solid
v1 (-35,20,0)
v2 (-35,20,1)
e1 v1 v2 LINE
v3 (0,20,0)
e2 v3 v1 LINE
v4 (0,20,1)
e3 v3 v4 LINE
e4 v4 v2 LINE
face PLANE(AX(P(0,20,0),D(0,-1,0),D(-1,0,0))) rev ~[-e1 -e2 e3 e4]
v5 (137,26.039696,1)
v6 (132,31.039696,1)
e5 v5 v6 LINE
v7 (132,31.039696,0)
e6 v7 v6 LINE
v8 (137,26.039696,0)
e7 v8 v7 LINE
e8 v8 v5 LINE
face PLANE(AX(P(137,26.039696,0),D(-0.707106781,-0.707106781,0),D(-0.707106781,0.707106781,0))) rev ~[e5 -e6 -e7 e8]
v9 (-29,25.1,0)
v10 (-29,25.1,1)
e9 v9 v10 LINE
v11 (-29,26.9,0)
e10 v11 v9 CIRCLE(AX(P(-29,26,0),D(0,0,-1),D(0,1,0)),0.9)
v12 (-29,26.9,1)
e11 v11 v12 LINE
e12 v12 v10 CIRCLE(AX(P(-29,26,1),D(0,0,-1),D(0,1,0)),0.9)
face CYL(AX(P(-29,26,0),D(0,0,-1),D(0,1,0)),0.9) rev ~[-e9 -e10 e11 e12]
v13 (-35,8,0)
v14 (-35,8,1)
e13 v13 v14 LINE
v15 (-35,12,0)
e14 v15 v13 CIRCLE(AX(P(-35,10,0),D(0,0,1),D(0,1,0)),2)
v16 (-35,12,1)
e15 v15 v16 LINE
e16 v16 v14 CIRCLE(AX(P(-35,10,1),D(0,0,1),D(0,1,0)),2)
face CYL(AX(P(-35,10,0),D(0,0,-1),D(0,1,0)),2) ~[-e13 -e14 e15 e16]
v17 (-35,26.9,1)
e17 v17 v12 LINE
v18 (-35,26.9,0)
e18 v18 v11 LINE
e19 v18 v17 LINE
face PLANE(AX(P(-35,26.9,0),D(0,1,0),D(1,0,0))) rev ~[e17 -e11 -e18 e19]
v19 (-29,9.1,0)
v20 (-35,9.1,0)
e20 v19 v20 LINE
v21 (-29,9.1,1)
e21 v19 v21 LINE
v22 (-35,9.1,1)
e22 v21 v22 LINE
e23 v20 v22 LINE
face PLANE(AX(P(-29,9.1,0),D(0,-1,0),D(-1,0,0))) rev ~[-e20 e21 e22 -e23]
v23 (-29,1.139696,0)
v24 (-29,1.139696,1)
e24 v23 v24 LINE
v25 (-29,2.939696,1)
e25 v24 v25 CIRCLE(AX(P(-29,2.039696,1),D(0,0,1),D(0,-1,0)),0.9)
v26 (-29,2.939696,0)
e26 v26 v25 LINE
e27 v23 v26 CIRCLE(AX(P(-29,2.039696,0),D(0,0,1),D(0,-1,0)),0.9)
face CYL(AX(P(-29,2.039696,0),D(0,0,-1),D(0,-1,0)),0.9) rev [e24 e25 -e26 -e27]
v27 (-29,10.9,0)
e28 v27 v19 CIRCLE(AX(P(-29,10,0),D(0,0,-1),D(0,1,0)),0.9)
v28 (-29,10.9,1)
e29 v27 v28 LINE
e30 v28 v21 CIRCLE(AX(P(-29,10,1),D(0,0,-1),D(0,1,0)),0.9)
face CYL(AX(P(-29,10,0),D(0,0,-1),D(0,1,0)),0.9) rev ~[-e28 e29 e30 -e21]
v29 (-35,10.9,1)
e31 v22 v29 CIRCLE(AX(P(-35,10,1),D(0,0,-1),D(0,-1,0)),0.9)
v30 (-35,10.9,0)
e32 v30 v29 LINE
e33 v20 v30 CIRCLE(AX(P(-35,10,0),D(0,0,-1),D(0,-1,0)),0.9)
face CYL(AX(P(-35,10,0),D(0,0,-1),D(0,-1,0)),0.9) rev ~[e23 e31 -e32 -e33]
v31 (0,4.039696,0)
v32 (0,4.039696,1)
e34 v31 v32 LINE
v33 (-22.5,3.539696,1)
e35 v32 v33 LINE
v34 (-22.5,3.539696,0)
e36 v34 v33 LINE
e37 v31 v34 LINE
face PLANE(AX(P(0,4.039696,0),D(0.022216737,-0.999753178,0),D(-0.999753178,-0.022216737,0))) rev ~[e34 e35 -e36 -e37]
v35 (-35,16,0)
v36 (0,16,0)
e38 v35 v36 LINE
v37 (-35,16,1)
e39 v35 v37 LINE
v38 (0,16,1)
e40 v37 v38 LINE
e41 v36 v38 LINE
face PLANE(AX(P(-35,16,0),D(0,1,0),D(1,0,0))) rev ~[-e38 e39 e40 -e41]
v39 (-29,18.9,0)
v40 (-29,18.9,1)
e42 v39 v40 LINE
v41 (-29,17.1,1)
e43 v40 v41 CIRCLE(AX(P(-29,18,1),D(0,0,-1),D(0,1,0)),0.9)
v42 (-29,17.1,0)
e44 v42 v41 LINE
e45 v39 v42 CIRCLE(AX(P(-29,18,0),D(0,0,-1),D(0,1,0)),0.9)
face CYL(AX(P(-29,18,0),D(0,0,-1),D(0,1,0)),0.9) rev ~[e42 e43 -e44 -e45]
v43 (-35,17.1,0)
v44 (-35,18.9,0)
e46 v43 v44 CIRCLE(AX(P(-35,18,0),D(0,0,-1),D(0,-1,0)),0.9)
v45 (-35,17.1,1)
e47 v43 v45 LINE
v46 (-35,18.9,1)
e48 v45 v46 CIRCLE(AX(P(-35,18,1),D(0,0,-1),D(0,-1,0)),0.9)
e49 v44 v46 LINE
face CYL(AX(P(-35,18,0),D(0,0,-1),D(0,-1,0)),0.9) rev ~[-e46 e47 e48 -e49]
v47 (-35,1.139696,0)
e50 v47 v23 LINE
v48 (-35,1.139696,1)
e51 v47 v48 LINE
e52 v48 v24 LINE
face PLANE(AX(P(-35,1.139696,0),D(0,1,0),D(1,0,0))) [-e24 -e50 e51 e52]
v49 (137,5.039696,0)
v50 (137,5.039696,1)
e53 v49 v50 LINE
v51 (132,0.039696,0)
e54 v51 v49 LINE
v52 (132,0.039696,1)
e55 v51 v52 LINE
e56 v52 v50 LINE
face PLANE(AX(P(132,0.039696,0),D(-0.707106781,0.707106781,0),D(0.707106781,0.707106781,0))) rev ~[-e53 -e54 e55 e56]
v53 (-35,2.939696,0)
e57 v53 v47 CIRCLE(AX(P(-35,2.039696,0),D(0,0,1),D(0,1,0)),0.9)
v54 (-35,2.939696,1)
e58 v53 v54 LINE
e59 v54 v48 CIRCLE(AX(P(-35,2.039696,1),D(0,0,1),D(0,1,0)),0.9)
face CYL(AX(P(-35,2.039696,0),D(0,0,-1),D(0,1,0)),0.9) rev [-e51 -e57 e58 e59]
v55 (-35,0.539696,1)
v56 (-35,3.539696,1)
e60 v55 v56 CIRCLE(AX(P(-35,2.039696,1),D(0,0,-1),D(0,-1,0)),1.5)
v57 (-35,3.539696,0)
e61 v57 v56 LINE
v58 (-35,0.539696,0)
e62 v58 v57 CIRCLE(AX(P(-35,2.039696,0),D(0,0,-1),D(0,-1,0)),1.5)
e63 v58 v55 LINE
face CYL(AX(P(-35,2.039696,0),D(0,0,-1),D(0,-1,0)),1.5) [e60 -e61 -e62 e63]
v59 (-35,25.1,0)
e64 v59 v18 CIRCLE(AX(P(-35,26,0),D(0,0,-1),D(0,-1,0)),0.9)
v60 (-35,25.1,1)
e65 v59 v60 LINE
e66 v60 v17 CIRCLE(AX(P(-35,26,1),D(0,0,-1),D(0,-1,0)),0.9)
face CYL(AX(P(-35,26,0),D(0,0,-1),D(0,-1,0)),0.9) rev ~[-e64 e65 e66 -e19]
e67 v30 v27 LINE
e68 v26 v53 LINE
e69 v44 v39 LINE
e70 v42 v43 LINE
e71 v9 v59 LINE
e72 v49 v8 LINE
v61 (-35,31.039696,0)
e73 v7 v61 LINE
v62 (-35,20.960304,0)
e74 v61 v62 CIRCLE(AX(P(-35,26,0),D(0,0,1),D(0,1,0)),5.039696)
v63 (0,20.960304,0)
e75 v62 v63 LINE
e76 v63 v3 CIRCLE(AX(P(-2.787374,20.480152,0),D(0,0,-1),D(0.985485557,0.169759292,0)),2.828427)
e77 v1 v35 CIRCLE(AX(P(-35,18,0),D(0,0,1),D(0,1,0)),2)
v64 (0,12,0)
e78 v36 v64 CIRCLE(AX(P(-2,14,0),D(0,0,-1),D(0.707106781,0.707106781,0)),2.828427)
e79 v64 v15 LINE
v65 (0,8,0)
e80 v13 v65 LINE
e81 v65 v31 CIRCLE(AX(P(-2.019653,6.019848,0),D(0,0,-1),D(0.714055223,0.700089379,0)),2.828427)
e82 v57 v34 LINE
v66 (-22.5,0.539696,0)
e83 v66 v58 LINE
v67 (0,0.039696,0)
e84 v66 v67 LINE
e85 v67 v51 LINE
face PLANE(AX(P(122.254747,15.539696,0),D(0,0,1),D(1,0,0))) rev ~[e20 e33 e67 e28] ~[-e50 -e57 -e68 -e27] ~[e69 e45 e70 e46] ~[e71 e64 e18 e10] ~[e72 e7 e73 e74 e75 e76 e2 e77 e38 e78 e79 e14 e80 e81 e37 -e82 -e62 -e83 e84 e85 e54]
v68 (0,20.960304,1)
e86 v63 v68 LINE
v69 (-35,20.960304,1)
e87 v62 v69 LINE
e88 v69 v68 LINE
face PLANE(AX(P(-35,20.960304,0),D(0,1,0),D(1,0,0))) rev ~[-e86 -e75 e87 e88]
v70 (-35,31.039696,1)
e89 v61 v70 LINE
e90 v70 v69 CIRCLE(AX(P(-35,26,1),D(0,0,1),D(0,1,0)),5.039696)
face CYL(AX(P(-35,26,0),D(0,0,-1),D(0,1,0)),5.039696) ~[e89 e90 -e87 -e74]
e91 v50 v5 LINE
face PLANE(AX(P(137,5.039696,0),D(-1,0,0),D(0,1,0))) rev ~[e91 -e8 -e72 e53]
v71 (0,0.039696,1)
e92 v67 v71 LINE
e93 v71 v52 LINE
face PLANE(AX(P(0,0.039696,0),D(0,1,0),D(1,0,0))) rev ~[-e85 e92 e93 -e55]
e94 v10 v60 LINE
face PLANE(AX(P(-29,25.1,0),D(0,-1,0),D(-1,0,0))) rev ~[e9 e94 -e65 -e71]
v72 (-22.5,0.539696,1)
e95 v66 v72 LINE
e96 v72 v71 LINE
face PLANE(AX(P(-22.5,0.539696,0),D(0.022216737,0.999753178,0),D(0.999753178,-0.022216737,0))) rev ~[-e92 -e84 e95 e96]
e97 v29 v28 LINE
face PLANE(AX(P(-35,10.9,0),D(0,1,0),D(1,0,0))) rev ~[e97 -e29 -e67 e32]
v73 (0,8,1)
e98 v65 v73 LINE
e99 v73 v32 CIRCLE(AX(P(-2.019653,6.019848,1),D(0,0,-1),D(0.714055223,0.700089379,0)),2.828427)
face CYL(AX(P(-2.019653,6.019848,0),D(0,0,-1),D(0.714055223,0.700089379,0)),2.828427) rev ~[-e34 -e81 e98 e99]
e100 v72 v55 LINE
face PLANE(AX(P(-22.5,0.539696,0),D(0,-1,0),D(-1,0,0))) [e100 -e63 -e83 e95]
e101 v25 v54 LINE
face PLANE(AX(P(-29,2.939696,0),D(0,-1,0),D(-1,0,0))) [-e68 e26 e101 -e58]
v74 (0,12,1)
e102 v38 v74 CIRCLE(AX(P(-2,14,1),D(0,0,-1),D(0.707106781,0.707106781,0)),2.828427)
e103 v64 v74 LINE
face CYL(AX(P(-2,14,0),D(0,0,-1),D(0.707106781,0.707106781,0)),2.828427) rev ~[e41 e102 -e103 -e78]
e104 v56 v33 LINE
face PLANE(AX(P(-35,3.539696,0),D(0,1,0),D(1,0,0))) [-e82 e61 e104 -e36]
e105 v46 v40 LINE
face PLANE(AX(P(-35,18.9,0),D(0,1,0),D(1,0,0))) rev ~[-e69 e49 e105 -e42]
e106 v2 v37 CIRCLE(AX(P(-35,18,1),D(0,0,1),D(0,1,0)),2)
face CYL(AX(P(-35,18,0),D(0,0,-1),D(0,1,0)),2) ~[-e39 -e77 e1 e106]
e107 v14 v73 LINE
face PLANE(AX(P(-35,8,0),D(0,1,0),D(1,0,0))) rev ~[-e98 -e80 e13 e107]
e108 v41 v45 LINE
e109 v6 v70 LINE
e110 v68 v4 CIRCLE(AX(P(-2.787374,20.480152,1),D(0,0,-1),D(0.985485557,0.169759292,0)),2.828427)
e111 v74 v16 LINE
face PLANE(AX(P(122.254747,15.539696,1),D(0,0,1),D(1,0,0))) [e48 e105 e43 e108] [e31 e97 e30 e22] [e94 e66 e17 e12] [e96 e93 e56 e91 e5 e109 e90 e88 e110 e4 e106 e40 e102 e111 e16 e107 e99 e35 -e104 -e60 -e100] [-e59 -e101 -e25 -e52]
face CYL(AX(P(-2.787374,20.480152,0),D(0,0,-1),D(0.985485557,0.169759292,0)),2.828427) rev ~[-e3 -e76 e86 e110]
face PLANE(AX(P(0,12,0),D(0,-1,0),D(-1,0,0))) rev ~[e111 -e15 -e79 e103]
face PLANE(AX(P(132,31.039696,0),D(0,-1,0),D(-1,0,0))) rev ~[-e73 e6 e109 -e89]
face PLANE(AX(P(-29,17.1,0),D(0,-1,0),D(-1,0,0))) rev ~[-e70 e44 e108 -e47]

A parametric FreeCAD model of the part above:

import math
import FreeCAD as App
import Part
import Sketcher

V = App.Vector

doc = App.newDocument("Part")
params = doc.addObject("Spreadsheet::Sheet", "Params")
for row, (alias, value) in enumerate([
    ("sketch1_radius", "2 mm"),
    ("sketch1_radius2", "1.5 mm"),
    ("sketch1_radius3", "0.9 mm"),
    ("sketch1_width", "167 mm"),
    ("sketch1_width2", "35 mm"),
    ("pad1_length", "1 mm"),
], start=1):
    params.set(f"A{row}", alias)
    params.set(f"B{row}", "=" + value)
    params.setAlias(f"B{row}", alias)

body = doc.addObject("PartDesign::Body", "Body")

sketch1 = body.newObject("Sketcher::SketchObject", "Sketch")
sketch1.AttachmentSupport = (doc.getObject("XY_Plane"), [""])
sketch1.MapMode = "FlatFace"
sketch1.addGeometry(Part.LineSegment(V(132, 0, 0), V(137, 5, 0)), False)
sketch1.addGeometry(Part.LineSegment(V(137, 5, 0), V(137, 26, 0)), False)
sketch1.addGeometry(Part.LineSegment(V(137, 26, 0), V(132, 31, 0)), False)
sketch1.addGeometry(Part.LineSegment(V(132, 31, 0), V(-35, 31, 0)), False)
sketch1.addGeometry(Part.ArcOfCircle(Part.Circle(V(-35, 26, 0), V(0, 0, 1), 5), math.radians(90), math.radians(270)), False)
sketch1.addGeometry(Part.LineSegment(V(-35, 21, 0), V(0, 21, 0)), False)
sketch1.addGeometry(Part.ArcOfCircle(Part.Circle(V(-2.8, 20.5, 0), V(0, 0, 1), 2.8), math.radians(-9.77), math.radians(9.77)), False)
sketch1.addGeometry(Part.LineSegment(V(0, 20, 0), V(-35, 20, 0)), False)
sketch1.addGeometry(Part.ArcOfCircle(Part.Circle(V(-35, 18, 0), V(0, 0, 1), 2), math.radians(90), math.radians(270)), False)
sketch1.addGeometry(Part.LineSegment(V(-35, 16, 0), V(0, 16, 0)), False)
sketch1.addGeometry(Part.ArcOfCircle(Part.Circle(V(-2, 14, 0), V(0, 0, 1), 2.8), math.radians(-45), math.radians(45)), False)
sketch1.addGeometry(Part.LineSegment(V(0, 12, 0), V(-35, 12, 0)), False)
sketch1.addGeometry(Part.ArcOfCircle(Part.Circle(V(-35, 10, 0), V(0, 0, 1), 2), math.radians(90), math.radians(270)), False)
sketch1.addGeometry(Part.LineSegment(V(-35, 8, 0), V(0, 8, 0)), False)
sketch1.addGeometry(Part.ArcOfCircle(Part.Circle(V(-2, 6, 0), V(0, 0, 1), 2.8), math.radians(-44), math.radians(44)), False)
sketch1.addGeometry(Part.LineSegment(V(0, 4, 0), V(-22.5, 3.5, 0)), False)
sketch1.addGeometry(Part.LineSegment(V(-22.5, 3.5, 0), V(-35, 3.5, 0)), False)
sketch1.addGeometry(Part.ArcOfCircle(Part.Circle(V(-35, 2, 0), V(0, 0, 1), 1.5), math.radians(90), math.radians(270)), False)
sketch1.addGeometry(Part.LineSegment(V(-35, 0.5, 0), V(-22.5, 0.5, 0)), False)
sketch1.addGeometry(Part.LineSegment(V(-22.5, 0.5, 0), V(0, 0, 0)), False)
sketch1.addGeometry(Part.LineSegment(V(0, 0, 0), V(132, 0, 0)), False)
sketch1.addGeometry(Part.ArcOfCircle(Part.Circle(V(-29, 2, 0), V(0, 0, 1), 0.9), math.radians(-90), math.radians(90)), False)
sketch1.addGeometry(Part.LineSegment(V(-29, 1.1, 0), V(-35, 1.1, 0)), False)
sketch1.addGeometry(Part.ArcOfCircle(Part.Circle(V(-35, 2, 0), V(0, 0, 1), 0.9), math.radians(90), math.radians(270)), False)
sketch1.addGeometry(Part.LineSegment(V(-35, 2.9, 0), V(-29, 2.9, 0)), False)
sketch1.addGeometry(Part.LineSegment(V(-29, 9.1, 0), V(-35, 9.1, 0)), False)
sketch1.addGeometry(Part.ArcOfCircle(Part.Circle(V(-35, 10, 0), V(0, 0, 1), 0.9), math.radians(90), math.radians(270)), False)
sketch1.addGeometry(Part.LineSegment(V(-35, 10.9, 0), V(-29, 10.9, 0)), False)
sketch1.addGeometry(Part.ArcOfCircle(Part.Circle(V(-29, 10, 0), V(0, 0, 1), 0.9), math.radians(-90), math.radians(90)), False)
sketch1.addGeometry(Part.LineSegment(V(-29, 17.1, 0), V(-35, 17.1, 0)), False)
sketch1.addGeometry(Part.ArcOfCircle(Part.Circle(V(-35, 18, 0), V(0, 0, 1), 0.9), math.radians(90), math.radians(270)), False)
sketch1.addGeometry(Part.LineSegment(V(-35, 18.9, 0), V(-29, 18.9, 0)), False)
sketch1.addGeometry(Part.ArcOfCircle(Part.Circle(V(-29, 18, 0), V(0, 0, 1), 0.9), math.radians(-90), math.radians(90)), False)
sketch1.addGeometry(Part.LineSegment(V(-29, 25.1, 0), V(-35, 25.1, 0)), False)
sketch1.addGeometry(Part.ArcOfCircle(Part.Circle(V(-35, 26, 0), V(0, 0, 1), 0.9), math.radians(90), math.radians(270)), False)
sketch1.addGeometry(Part.LineSegment(V(-35, 26.9, 0), V(-29, 26.9, 0)), False)
sketch1.addGeometry(Part.ArcOfCircle(Part.Circle(V(-29, 26, 0), V(0, 0, 1), 0.9), math.radians(-90), math.radians(90)), False)
sketch1.addConstraint(Sketcher.Constraint("Coincident", 0, 2, 1, 1))
sketch1.addConstraint(Sketcher.Constraint("Coincident", 1, 2, 2, 1))
sketch1.addConstraint(Sketcher.Constraint("Coincident", 2, 2, 3, 1))
sketch1.addConstraint(Sketcher.Constraint("Tangent", 3, 2, 4, 1))
sketch1.addConstraint(Sketcher.Constraint("Tangent", 4, 2, 5, 1))
sketch1.addConstraint(Sketcher.Constraint("Coincident", 5, 2, 6, 2))
sketch1.addConstraint(Sketcher.Constraint("Coincident", 6, 1, 7, 1))
sketch1.addConstraint(Sketcher.Constraint("Tangent", 7, 2, 8, 1))
sketch1.addConstraint(Sketcher.Constraint("Tangent", 8, 2, 9, 1))
sketch1.addConstraint(Sketcher.Constraint("Coincident", 9, 2, 10, 2))
sketch1.addConstraint(Sketcher.Constraint("Coincident", 10, 1, 11, 1))
sketch1.addConstraint(Sketcher.Constraint("Tangent", 11, 2, 12, 1))
sketch1.addConstraint(Sketcher.Constraint("Tangent", 12, 2, 13, 1))
sketch1.addConstraint(Sketcher.Constraint("Coincident", 13, 2, 14, 2))
sketch1.addConstraint(Sketcher.Constraint("Coincident", 14, 1, 15, 1))
sketch1.addConstraint(Sketcher.Constraint("Coincident", 15, 2, 16, 1))
sketch1.addConstraint(Sketcher.Constraint("Tangent", 16, 2, 17, 1))
sketch1.addConstraint(Sketcher.Constraint("Tangent", 17, 2, 18, 1))
sketch1.addConstraint(Sketcher.Constraint("Coincident", 18, 2, 19, 1))
sketch1.addConstraint(Sketcher.Constraint("Coincident", 19, 2, 20, 1))
sketch1.addConstraint(Sketcher.Constraint("Coincident", 20, 2, 0, 1))
sketch1.addConstraint(Sketcher.Constraint("Tangent", 21, 1, 22, 1))
sketch1.addConstraint(Sketcher.Constraint("Tangent", 22, 2, 23, 2))
sketch1.addConstraint(Sketcher.Constraint("Tangent", 23, 1, 24, 1))
sketch1.addConstraint(Sketcher.Constraint("Tangent", 24, 2, 21, 2))
sketch1.addConstraint(Sketcher.Constraint("Tangent", 25, 2, 26, 2))
sketch1.addConstraint(Sketcher.Constraint("Tangent", 26, 1, 27, 1))
sketch1.addConstraint(Sketcher.Constraint("Tangent", 27, 2, 28, 2))
sketch1.addConstraint(Sketcher.Constraint("Tangent", 28, 1, 25, 1))
sketch1.addConstraint(Sketcher.Constraint("Tangent", 29, 2, 30, 2))
sketch1.addConstraint(Sketcher.Constraint("Tangent", 30, 1, 31, 1))
sketch1.addConstraint(Sketcher.Constraint("Tangent", 31, 2, 32, 2))
sketch1.addConstraint(Sketcher.Constraint("Tangent", 32, 1, 29, 1))
sketch1.addConstraint(Sketcher.Constraint("Tangent", 33, 2, 34, 2))
sketch1.addConstraint(Sketcher.Constraint("Tangent", 34, 1, 35, 1))
sketch1.addConstraint(Sketcher.Constraint("Tangent", 35, 2, 36, 2))
sketch1.addConstraint(Sketcher.Constraint("Tangent", 36, 1, 33, 1))
sketch1.addConstraint(Sketcher.Constraint("Vertical", 1))
sketch1.addConstraint(Sketcher.Constraint("Horizontal", 3))
sketch1.addConstraint(Sketcher.Constraint("Horizontal", 5))
sketch1.addConstraint(Sketcher.Constraint("Horizontal", 7))
sketch1.addConstraint(Sketcher.Constraint("Horizontal", 9))
sketch1.addConstraint(Sketcher.Constraint("Horizontal", 11))
sketch1.addConstraint(Sketcher.Constraint("Horizontal", 13))
sketch1.addConstraint(Sketcher.Constraint("Horizontal", 16))
sketch1.addConstraint(Sketcher.Constraint("Horizontal", 18))
sketch1.addConstraint(Sketcher.Constraint("Horizontal", 20))
sketch1.addConstraint(Sketcher.Constraint("Horizontal", 22))
sketch1.addConstraint(Sketcher.Constraint("Horizontal", 24))
sketch1.addConstraint(Sketcher.Constraint("Horizontal", 25))
sketch1.addConstraint(Sketcher.Constraint("Horizontal", 27))
sketch1.addConstraint(Sketcher.Constraint("Horizontal", 29))
sketch1.addConstraint(Sketcher.Constraint("Horizontal", 31))
sketch1.addConstraint(Sketcher.Constraint("Horizontal", 33))
sketch1.addConstraint(Sketcher.Constraint("Horizontal", 35))
sketch1.addConstraint(Sketcher.Constraint("Coincident", 23, 3, 17, 3))
sketch1.addConstraint(Sketcher.Constraint("Coincident", 26, 3, 12, 3))
sketch1.addConstraint(Sketcher.Constraint("Coincident", 30, 3, 8, 3))
sketch1.addConstraint(Sketcher.Constraint("Coincident", 34, 3, 4, 3))
sketch1.addConstraint(Sketcher.Constraint("Equal", 6, 10))
sketch1.addConstraint(Sketcher.Constraint("Equal", 8, 12))
sketch1.addConstraint(Sketcher.Constraint("Equal", 10, 14))
sketch1.addConstraint(Sketcher.Constraint("Equal", 23, 26))
sketch1.addConstraint(Sketcher.Constraint("Equal", 28, 30))
sketch1.addConstraint(Sketcher.Constraint("Equal", 32, 34))
sketch1.addConstraint(Sketcher.Constraint("PointOnObject", 5, 2, -2))
sketch1.addConstraint(Sketcher.Constraint("PointOnObject", 6, 1, -2))
sketch1.addConstraint(Sketcher.Constraint("PointOnObject", 9, 2, -2))
sketch1.addConstraint(Sketcher.Constraint("PointOnObject", 10, 1, -2))
sketch1.addConstraint(Sketcher.Constraint("PointOnObject", 13, 2, -2))
sketch1.addConstraint(Sketcher.Constraint("PointOnObject", 14, 1, -2))
sketch1.addConstraint(Sketcher.Constraint("PointOnObject", 19, 2, -2))
sketch1.addConstraint(Sketcher.Constraint("Perpendicular", 0, 2))
sketch1.addConstraint(Sketcher.Constraint("Vertical", 4, 3, 8, 3))
sketch1.addConstraint(Sketcher.Constraint("Vertical", 8, 3, 12, 3))
sketch1.addConstraint(Sketcher.Constraint("Vertical", 12, 3, 17, 3))
sketch1.addConstraint(Sketcher.Constraint("Vertical", 21, 3, 28, 3))
sketch1.addConstraint(Sketcher.Constraint("Vertical", 28, 3, 32, 3))
sketch1.addConstraint(Sketcher.Constraint("Vertical", 32, 3, 36, 3))
sketch1.addConstraint(Sketcher.Constraint("Vertical", 15, 2, 18, 2))
sketch1.addConstraint(Sketcher.Constraint("Vertical", 2, 2, 20, 2))
sketch1.addConstraint(Sketcher.Constraint("Equal", 0, 2))
sketch1.addConstraint(Sketcher.Constraint("Equal", 15, 19))
sketch1.addConstraint(Sketcher.Constraint("Radius", 8, 2.0))
sketch1.addConstraint(Sketcher.Constraint("Radius", 17, 1.5))
sketch1.addConstraint(Sketcher.Constraint("Radius", 21, 0.9))
sketch1.addConstraint(Sketcher.Constraint("DistanceX", 3, 2, 3, 1, 167.0))
sketch1.addConstraint(Sketcher.Constraint("DistanceX", 5, 1, 5, 2, 35.0))
sketch1.addConstraint(Sketcher.Constraint("DistanceX", 22, 2, 22, 1, 6.0))
sketch1.addConstraint(Sketcher.Constraint("DistanceY", 1, 1, 1, 2, 21.0))
sketch1.addConstraint(Sketcher.Constraint("DistanceX", 16, 2, 16, 1, 12.5))
sketch1.addConstraint(Sketcher.Constraint("DistanceY", -1, 1, 4, 3, 26.0))
sketch1.addConstraint(Sketcher.Constraint("DistanceY", -1, 1, 8, 3, 18.0))
sketch1.addConstraint(Sketcher.Constraint("DistanceX", 10, 3, -1, 1, 2.0))
sketch1.addConstraint(Sketcher.Constraint("DistanceY", -1, 1, 10, 3, 14.0))
sketch1.addConstraint(Sketcher.Constraint("DistanceX", -1, 1, 0, 2, 137.0))
sketch1.addConstraint(Sketcher.Constraint("DistanceY", 21, 3, 0, 2, 3.0))
sketch1.addConstraint(Sketcher.Constraint("Radius", 4, 5.039696))
sketch1.setExpression("Constraints[83]", "Params.sketch1_radius")
sketch1.setExpression("Constraints[84]", "Params.sketch1_radius2")
sketch1.setExpression("Constraints[85]", "Params.sketch1_radius3")
sketch1.setExpression("Constraints[86]", "Params.sketch1_width")
sketch1.setExpression("Constraints[87]", "Params.sketch1_width2")
pad1 = body.newObject("PartDesign::Pad", "Pad")
pad1.Profile = sketch1
pad1.setExpression("Length", "Params.pad1_length")

doc.recompute()
